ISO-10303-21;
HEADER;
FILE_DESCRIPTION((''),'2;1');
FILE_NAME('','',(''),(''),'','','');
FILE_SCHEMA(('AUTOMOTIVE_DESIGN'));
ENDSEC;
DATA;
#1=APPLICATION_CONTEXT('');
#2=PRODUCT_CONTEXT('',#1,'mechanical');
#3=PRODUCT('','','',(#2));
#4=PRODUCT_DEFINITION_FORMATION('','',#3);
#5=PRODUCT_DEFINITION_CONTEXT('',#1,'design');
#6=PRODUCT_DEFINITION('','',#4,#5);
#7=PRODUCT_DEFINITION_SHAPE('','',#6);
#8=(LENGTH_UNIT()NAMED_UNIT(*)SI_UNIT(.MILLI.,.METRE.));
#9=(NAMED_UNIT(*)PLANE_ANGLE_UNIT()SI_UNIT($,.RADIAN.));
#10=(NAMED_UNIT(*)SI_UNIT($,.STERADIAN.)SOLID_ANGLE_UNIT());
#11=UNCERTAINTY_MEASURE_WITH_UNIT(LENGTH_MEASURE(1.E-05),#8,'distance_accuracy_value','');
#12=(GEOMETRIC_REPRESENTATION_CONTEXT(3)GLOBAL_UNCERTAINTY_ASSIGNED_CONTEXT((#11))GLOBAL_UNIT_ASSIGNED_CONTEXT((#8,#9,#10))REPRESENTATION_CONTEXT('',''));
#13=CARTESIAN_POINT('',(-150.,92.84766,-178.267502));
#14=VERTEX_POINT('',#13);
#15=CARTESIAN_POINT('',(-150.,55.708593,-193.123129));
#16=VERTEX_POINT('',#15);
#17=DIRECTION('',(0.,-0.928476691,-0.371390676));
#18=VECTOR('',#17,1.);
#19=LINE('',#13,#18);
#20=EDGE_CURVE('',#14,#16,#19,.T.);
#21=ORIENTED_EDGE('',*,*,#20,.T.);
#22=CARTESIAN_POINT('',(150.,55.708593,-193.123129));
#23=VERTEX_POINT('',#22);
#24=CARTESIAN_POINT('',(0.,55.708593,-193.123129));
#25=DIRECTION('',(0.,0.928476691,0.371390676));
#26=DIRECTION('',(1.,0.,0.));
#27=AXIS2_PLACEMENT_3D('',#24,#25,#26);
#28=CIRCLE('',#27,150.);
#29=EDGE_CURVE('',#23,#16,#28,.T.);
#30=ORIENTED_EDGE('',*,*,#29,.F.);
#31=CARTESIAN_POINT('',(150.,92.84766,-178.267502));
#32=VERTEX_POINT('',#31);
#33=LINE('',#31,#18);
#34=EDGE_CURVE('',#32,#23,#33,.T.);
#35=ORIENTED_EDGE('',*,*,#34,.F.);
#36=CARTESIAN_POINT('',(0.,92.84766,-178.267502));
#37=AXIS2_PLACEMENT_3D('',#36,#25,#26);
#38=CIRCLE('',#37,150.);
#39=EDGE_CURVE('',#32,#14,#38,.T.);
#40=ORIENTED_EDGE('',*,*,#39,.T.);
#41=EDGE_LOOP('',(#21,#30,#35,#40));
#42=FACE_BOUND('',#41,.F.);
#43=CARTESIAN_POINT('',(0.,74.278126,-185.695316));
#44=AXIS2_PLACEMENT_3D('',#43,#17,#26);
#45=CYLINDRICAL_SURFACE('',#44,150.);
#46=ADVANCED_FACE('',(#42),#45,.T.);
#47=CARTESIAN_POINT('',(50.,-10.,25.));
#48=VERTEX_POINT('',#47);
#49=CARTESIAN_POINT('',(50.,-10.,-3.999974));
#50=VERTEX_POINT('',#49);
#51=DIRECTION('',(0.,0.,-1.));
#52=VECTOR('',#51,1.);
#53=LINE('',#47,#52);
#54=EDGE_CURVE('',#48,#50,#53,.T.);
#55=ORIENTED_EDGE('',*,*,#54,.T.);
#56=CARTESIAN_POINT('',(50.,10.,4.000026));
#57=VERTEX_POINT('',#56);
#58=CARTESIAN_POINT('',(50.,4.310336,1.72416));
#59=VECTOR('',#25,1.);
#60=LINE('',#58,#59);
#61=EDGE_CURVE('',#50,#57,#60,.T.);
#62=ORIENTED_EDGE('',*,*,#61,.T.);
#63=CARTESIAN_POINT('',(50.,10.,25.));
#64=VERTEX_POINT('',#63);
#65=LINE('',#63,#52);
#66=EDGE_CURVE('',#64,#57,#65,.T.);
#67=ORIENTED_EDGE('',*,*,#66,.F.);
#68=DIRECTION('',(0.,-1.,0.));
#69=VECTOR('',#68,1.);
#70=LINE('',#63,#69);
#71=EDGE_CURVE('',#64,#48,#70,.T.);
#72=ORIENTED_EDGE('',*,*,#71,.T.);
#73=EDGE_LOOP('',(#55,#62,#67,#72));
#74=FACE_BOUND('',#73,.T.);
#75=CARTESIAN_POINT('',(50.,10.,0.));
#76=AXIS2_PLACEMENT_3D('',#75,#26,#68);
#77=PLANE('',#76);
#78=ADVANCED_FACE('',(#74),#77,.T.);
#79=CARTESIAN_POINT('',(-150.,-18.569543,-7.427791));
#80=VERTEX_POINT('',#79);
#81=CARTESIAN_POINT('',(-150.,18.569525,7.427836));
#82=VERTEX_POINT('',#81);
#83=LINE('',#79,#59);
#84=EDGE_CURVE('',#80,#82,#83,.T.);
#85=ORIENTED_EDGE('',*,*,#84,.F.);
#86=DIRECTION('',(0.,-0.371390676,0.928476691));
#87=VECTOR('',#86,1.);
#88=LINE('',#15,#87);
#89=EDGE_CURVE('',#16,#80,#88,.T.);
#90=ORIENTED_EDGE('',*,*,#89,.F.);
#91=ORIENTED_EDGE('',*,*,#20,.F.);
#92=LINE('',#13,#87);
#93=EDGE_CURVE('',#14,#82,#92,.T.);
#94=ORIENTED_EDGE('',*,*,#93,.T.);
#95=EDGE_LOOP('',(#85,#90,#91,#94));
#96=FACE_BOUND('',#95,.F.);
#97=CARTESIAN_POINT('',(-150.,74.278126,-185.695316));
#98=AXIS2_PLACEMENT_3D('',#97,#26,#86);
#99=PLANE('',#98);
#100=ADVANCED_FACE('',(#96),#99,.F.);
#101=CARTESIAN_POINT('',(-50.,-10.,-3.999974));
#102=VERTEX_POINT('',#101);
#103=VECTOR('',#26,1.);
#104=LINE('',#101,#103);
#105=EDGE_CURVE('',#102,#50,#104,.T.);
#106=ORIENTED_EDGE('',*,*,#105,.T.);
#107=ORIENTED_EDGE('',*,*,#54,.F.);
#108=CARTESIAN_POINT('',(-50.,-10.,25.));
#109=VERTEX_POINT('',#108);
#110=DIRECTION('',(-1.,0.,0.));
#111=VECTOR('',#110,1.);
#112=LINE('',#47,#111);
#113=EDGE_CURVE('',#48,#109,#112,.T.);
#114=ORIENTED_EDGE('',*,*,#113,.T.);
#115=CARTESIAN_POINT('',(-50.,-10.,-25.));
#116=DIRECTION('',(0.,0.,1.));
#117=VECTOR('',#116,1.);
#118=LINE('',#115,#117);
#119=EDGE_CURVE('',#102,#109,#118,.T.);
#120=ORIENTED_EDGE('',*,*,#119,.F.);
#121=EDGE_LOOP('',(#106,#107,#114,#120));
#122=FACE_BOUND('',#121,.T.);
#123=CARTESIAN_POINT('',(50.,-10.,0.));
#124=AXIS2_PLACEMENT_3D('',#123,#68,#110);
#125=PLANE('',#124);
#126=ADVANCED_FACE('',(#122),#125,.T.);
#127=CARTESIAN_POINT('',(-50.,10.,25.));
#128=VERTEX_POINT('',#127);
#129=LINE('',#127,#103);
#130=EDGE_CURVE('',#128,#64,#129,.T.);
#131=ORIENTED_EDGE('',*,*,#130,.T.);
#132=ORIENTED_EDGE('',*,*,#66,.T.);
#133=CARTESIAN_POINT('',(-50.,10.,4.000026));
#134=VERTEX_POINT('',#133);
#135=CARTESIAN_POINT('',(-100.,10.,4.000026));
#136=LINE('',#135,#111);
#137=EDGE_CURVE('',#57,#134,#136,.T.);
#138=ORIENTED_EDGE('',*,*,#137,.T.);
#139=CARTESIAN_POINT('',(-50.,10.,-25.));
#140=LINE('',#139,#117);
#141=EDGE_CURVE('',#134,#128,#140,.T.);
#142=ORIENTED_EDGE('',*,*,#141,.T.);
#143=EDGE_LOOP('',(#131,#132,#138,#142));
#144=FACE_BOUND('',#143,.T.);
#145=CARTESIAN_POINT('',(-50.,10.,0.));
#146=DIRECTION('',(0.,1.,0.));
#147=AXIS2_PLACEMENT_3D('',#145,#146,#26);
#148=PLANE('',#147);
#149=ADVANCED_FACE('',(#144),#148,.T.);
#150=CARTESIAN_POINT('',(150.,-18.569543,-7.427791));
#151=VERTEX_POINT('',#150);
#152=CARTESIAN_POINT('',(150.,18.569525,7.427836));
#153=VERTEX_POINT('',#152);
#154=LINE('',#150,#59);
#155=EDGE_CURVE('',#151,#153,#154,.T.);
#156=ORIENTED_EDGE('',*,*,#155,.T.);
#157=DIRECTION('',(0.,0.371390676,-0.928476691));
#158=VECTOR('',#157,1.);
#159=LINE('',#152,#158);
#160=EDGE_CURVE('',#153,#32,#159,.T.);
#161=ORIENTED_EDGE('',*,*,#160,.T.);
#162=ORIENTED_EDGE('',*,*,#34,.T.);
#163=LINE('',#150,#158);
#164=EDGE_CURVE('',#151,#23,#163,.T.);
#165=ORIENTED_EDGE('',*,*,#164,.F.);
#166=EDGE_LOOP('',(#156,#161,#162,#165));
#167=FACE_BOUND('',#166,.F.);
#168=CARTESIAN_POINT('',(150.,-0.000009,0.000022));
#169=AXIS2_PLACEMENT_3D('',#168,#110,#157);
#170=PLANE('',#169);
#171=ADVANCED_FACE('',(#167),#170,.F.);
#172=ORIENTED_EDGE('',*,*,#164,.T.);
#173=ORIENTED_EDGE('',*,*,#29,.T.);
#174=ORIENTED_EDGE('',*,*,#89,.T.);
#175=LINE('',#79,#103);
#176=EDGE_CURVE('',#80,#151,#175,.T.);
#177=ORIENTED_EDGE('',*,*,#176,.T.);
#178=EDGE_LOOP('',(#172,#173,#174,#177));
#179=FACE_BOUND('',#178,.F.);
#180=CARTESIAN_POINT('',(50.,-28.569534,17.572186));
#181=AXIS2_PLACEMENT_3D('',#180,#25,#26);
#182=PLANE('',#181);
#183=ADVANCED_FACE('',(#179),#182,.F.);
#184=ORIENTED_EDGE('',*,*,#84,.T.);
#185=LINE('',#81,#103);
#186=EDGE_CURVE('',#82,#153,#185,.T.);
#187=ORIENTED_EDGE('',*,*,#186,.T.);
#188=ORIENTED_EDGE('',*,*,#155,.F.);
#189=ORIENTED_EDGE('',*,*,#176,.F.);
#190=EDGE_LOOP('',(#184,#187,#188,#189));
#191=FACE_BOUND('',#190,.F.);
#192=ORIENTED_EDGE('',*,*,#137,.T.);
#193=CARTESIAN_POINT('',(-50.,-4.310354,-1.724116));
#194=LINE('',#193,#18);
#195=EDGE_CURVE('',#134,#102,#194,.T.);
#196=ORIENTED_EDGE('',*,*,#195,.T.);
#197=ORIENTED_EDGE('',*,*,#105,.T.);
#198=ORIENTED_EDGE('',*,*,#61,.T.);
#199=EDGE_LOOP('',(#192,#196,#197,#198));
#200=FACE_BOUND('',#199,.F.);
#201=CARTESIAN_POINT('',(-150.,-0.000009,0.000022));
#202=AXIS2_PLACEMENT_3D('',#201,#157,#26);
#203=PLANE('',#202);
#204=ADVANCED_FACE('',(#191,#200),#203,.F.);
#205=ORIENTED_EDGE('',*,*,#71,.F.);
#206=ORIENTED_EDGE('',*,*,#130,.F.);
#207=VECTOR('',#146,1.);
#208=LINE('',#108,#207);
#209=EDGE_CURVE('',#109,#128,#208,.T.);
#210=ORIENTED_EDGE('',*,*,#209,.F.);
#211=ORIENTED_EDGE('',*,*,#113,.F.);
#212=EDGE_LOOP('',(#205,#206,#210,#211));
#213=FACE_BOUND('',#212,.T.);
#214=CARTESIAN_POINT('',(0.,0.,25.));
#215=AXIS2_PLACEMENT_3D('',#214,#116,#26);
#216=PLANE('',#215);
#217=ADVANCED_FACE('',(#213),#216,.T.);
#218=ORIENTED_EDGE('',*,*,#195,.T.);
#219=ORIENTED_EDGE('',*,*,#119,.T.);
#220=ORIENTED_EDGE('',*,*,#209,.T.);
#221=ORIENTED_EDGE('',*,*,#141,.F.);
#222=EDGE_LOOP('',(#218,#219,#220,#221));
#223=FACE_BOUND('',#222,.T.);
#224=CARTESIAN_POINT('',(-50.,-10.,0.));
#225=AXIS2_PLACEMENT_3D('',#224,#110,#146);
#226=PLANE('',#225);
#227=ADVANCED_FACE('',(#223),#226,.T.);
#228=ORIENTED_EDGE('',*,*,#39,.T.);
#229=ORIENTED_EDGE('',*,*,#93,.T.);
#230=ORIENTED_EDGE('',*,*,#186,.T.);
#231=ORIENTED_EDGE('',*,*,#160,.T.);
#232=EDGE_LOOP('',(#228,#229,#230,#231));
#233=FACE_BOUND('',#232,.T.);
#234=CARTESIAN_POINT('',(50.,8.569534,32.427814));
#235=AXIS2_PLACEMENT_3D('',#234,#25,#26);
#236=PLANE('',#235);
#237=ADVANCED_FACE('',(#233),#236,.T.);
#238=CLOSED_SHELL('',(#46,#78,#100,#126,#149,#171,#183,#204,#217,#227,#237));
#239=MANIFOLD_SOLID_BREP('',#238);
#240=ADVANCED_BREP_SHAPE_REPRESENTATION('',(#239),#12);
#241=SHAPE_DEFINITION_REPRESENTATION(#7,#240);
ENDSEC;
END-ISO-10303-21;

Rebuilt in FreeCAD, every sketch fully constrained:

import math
import FreeCAD as App
import Part
import Sketcher
Q = App.Units.Quantity


def add_polygon(sketch, points):
    """Adds a closed chain of lines whose ends are joined by coincident constraints."""
    first, n = sketch.GeometryCount, len(points)
    for a, b in zip(points, points[1:] + points[:1]):
        sketch.addGeometry(Part.LineSegment(App.Vector(*a, 0), App.Vector(*b, 0)), False)
    for i in range(n):
        sketch.addConstraint(Sketcher.Constraint("Coincident", first + i, 2, first + (i + 1) % n, 1))

doc = App.newDocument("Part")
body = doc.addObject("PartDesign::Body", "Body")

# Sketch on XY plane
sketch1 = body.newObject("Sketcher::SketchObject", "Sketch")
sketch1.AttachmentSupport = (doc.getObject("XY_Plane"), [""])
sketch1.MapMode = "FlatFace"
add_polygon(sketch1, [(50, 10), (-50, 10), (-50, -10), (50, -10)])  # lines 0-3
sketch1.addConstraint([
    Sketcher.Constraint("Horizontal", 0),
    Sketcher.Constraint("Vertical", 1),
    Sketcher.Constraint("Horizontal", 2),
    Sketcher.Constraint("Vertical", 3),
    Sketcher.Constraint("Symmetric", 0, 2, 2, 2, -1, 1),
    Sketcher.Constraint("DistanceX", 0, 2, 0, 1, Q("100 mm")),
    Sketcher.Constraint("DistanceY", 1, 2, 1, 1, Q("20 mm")),
])
pad1 = body.newObject("PartDesign::Pad", "Pad")
pad1.Profile = sketch1
pad1.Length = 50
pad1.Midplane = True

# Sketch on an angled plane
sketch2 = body.newObject("Sketcher::SketchObject", "Sketch001")
sketch2.Placement = App.Placement(App.Vector(50, -10, 25), App.Rotation(App.Vector(1, 0, 0), App.Vector(0, 0.371390676, -0.928476691), App.Vector(0, 0.928476691, 0.371390676), "ZXY"))
sketch2.addGeometry([
    Part.LineSegment(App.Vector(-200, 227, 0), App.Vector(-200, 27, 0)),
    Part.LineSegment(App.Vector(-200, 27, 0), App.Vector(100, 27, 0)),
    Part.LineSegment(App.Vector(100, 27, 0), App.Vector(100, 227, 0)),
    Part.ArcOfCircle(Part.Circle(App.Vector(-50, 227, 0), App.Vector(0, 0, 1), 150), math.radians(0), math.radians(180)),
], False)
sketch2.addConstraint([
    Sketcher.Constraint("Coincident", 0, 2, 1, 1),
    Sketcher.Constraint("Coincident", 1, 2, 2, 1),
    Sketcher.Constraint("Tangent", 2, 2, 3, 1),
    Sketcher.Constraint("Tangent", 3, 2, 0, 1),
    Sketcher.Constraint("Vertical", 0),
    Sketcher.Constraint("Horizontal", 1),
    Sketcher.Constraint("Vertical", 2),
    Sketcher.Constraint("Radius", 3, Q("150 mm")),
    Sketcher.Constraint("DistanceY", 0, 2, 0, 1, Q("200 mm")),
    Sketcher.Constraint("DistanceX", 0, 2, -1, 1, Q("200 mm")),
    Sketcher.Constraint("DistanceY", -1, 1, 3, 3, Q("226.9258 mm")),
])
pad2 = body.newObject("PartDesign::Pad", "Pad001")
pad2.Profile = sketch2
pad2.Length = 40
pad2.Midplane = True

doc.recompute()
